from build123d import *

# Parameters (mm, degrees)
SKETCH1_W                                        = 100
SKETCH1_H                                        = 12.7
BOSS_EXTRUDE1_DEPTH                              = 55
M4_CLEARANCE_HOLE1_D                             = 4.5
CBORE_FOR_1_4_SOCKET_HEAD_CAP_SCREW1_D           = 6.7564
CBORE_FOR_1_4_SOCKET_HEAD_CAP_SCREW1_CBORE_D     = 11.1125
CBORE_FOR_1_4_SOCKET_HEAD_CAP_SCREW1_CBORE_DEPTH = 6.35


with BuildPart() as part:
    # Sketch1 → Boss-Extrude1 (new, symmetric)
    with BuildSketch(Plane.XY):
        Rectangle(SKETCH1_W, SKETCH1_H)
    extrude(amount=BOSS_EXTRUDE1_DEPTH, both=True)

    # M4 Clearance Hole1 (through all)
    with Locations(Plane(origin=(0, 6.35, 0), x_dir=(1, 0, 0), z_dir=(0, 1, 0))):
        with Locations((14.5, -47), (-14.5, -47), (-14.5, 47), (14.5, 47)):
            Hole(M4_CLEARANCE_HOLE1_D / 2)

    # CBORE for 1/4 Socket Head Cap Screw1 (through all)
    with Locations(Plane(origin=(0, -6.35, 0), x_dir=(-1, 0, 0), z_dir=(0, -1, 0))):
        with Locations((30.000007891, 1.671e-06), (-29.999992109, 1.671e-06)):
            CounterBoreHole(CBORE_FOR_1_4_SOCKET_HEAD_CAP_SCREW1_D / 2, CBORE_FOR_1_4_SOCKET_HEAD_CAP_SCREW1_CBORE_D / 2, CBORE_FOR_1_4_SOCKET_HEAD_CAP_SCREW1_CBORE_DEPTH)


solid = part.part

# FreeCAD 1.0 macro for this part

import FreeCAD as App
import Part
import Sketcher


def add_polygon(sketch, points):
    """Adds a closed chain of lines whose ends are joined by coincident constraints."""
    first, n = sketch.GeometryCount, len(points)
    for a, b in zip(points, points[1:] + points[:1]):
        sketch.addGeometry(Part.LineSegment(App.Vector(*a, 0), App.Vector(*b, 0)), False)
    for i in range(n):
        sketch.addConstraint(Sketcher.Constraint("Coincident", first + i, 2, first + (i + 1) % n, 1))

doc = App.newDocument("Part")
params = doc.addObject("Spreadsheet::Sheet", "Params")
for row, (alias, value) in enumerate([
    ("sketch1_width", "100 mm"),
    ("sketch1_height", "12.7 mm"),
    ("pad1_length", "110 mm"),
    ("sketch2_diameter", "4.5 mm"),
    ("hole_diameter", "4.5 mm"),
    ("hole2_diameter", "6.7564 mm"),
    ("hole2_cbore_diameter", "11.1125 mm"),
    ("hole2_cbore_depth", "6.35 mm"),
], start=1):
    params.set(f"A{row}", alias)
    params.set(f"B{row}", "=" + value)
    params.setAlias(f"B{row}", alias)

body = doc.addObject("PartDesign::Body", "Body")

# Sketch on XY plane
sketch1 = body.newObject("Sketcher::SketchObject", "Sketch")
sketch1.AttachmentSupport = (doc.getObject("XY_Plane"), [""])
sketch1.MapMode = "FlatFace"
add_polygon(sketch1, [(-50, 6.35), (-50, -6.35), (50, -6.35), (50, 6.35)])  # lines 0-3
sketch1.addConstraint(Sketcher.Constraint("Vertical", 0))
sketch1.addConstraint(Sketcher.Constraint("Horizontal", 1))
sketch1.addConstraint(Sketcher.Constraint("Vertical", 2))
sketch1.addConstraint(Sketcher.Constraint("Horizontal", 3))
sketch1.addConstraint(Sketcher.Constraint("Symmetric", 0, 2, 2, 2, -1, 1))
sketch1.addConstraint(Sketcher.Constraint("DistanceX", 1, 1, 1, 2, 100.0))
sketch1.addConstraint(Sketcher.Constraint("DistanceY", 0, 2, 0, 1, 12.7))
sketch1.setExpression("Constraints[9]", "Params.sketch1_width")
sketch1.setExpression("Constraints[10]", "Params.sketch1_height")
pad1 = body.newObject("PartDesign::Pad", "Pad")
pad1.Profile = sketch1
pad1.setExpression("Length", "Params.pad1_length")
pad1.Midplane = True

# Sketch on XZ plane
sketch2 = body.newObject("Sketcher::SketchObject", "Sketch001")
sketch2.AttachmentSupport = (doc.getObject("XZ_Plane"), [""])
sketch2.MapMode = "FlatFace"
sketch2.AttachmentOffset = App.Placement(App.Vector(0, 0, -6.35), App.Rotation())
sketch2.addGeometry(Part.Circle(App.Vector(14.5, 47, 0), App.Vector(0, 0, 1), 2.25), False)
sketch2.addGeometry(Part.Circle(App.Vector(-14.5, 47, 0), App.Vector(0, 0, 1), 2.25), False)
sketch2.addGeometry(Part.Circle(App.Vector(-14.5, -47, 0), App.Vector(0, 0, 1), 2.25), False)
sketch2.addGeometry(Part.Circle(App.Vector(14.5, -47, 0), App.Vector(0, 0, 1), 2.25), False)
sketch2.addConstraint(Sketcher.Constraint("Equal", 0, 1))
sketch2.addConstraint(Sketcher.Constraint("Equal", 1, 2))
sketch2.addConstraint(Sketcher.Constraint("Equal", 2, 3))
sketch2.addConstraint(Sketcher.Constraint("Symmetric", 0, 3, 2, 3, -1, 1))
sketch2.addConstraint(Sketcher.Constraint("Symmetric", 1, 3, 3, 3, -1, 1))
sketch2.addConstraint(Sketcher.Constraint("Symmetric", 0, 3, 1, 3, -2))
sketch2.addConstraint(Sketcher.Constraint("Diameter", 0, 4.5))
sketch2.addConstraint(Sketcher.Constraint("DistanceY", -1, 1, 0, 3, 47.0))
sketch2.addConstraint(Sketcher.Constraint("DistanceX", 1, 3, 0, 3, 29.0))
sketch2.setExpression("Constraints[6]", "Params.sketch2_diameter")
doc.recompute()
hole = body.newObject("PartDesign::Hole", "Hole")
hole.Profile = sketch2
hole.ThreadType = "None"
hole.setExpression("Diameter", "Params.hole_diameter")
hole.DepthType = "ThroughAll"
hole.Reversed = True

# Sketch on XZ plane
sketch3 = body.newObject("Sketcher::SketchObject", "Sketch002")
sketch3.AttachmentSupport = (doc.getObject("XZ_Plane"), [""])
sketch3.MapMode = "FlatFace"
sketch3.AttachmentOffset = App.Placement(App.Vector(0, 0, 6.35), App.Rotation())
sketch3.addGeometry(Part.Circle(App.Vector(-30.000008, -0.000002, 0), App.Vector(0, 0, 1), 3.3782), False)
sketch3.addGeometry(Part.Circle(App.Vector(29.999992, -0.000002, 0), App.Vector(0, 0, 1), 3.3782), False)
sketch3.addConstraint(Sketcher.Constraint("Equal", 0, 1))
sketch3.addConstraint(Sketcher.Constraint("PointOnObject", 0, 3, -1))
sketch3.addConstraint(Sketcher.Constraint("PointOnObject", 1, 3, -1))
sketch3.addConstraint(Sketcher.Constraint("DistanceX", 0, 3, 1, 3, 60.0))
sketch3.addConstraint(Sketcher.Constraint("Diameter", 0, 6.7564))
sketch3.addConstraint(Sketcher.Constraint("DistanceX", 0, 3, -1, 1, 30.000008))
doc.recompute()
hole2 = body.newObject("PartDesign::Hole", "Hole001")
hole2.Profile = sketch3
hole2.ThreadType = "None"
hole2.setExpression("Diameter", "Params.hole2_diameter")
hole2.DepthType = "ThroughAll"
hole2.HoleCutType = "Counterbore"
hole2.setExpression("HoleCutDiameter", "Params.hole2_cbore_diameter")
hole2.setExpression("HoleCutDepth", "Params.hole2_cbore_depth")

doc.recompute()
